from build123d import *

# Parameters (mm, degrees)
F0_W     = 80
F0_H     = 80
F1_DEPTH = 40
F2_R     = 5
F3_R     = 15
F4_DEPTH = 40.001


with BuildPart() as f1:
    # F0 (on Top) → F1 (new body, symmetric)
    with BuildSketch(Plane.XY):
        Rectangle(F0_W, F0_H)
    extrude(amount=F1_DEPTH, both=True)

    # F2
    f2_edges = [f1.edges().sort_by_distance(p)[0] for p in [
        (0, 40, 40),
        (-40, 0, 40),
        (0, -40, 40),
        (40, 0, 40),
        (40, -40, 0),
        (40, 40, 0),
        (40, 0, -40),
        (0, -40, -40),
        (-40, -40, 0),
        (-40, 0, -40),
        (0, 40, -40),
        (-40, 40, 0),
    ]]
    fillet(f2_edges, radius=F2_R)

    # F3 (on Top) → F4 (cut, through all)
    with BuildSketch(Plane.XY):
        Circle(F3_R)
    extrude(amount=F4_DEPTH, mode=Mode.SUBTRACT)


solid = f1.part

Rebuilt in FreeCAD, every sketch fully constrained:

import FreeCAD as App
import Part
import Sketcher


def add_polygon(sketch, points):
    """Adds a closed chain of lines whose ends are joined by coincident constraints."""
    first, n = sketch.GeometryCount, len(points)
    for a, b in zip(points, points[1:] + points[:1]):
        sketch.addGeometry(Part.LineSegment(App.Vector(*a, 0), App.Vector(*b, 0)), False)
    for i in range(n):
        sketch.addConstraint(Sketcher.Constraint("Coincident", first + i, 2, first + (i + 1) % n, 1))

doc = App.newDocument("Part")
params = doc.addObject("Spreadsheet::Sheet", "Params")
for row, (alias, value) in enumerate([
    ("sketch1_width", "80 mm"),
    ("pad1_length", "80 mm"),
    ("fillet_radius", "5 mm"),
    ("sketch2_diameter", "30 mm"),
], start=1):
    params.set(f"A{row}", alias)
    params.set(f"B{row}", "=" + value)
    params.setAlias(f"B{row}", alias)

body = doc.addObject("PartDesign::Body", "Body")

# Sketch on XY plane
sketch1 = body.newObject("Sketcher::SketchObject", "Sketch")
sketch1.AttachmentSupport = (doc.getObject("XY_Plane"), [""])
sketch1.MapMode = "FlatFace"
add_polygon(sketch1, [(-40, 40), (-40, -40), (40, -40), (40, 40)])  # lines 0-3
sketch1.addConstraint(Sketcher.Constraint("Vertical", 0))
sketch1.addConstraint(Sketcher.Constraint("Horizontal", 1))
sketch1.addConstraint(Sketcher.Constraint("Vertical", 2))
sketch1.addConstraint(Sketcher.Constraint("Horizontal", 3))
sketch1.addConstraint(Sketcher.Constraint("Symmetric", 0, 2, 2, 2, -1, 1))
sketch1.addConstraint(Sketcher.Constraint("Equal", 3, 0))
sketch1.addConstraint(Sketcher.Constraint("DistanceX", 1, 1, 1, 2, 80.0))
sketch1.setExpression("Constraints[10]", "Params.sketch1_width")
pad1 = body.newObject("PartDesign::Pad", "Pad")
pad1.Profile = sketch1
pad1.setExpression("Length", "Params.pad1_length")
pad1.Midplane = True
doc.recompute()

fillet = body.newObject("PartDesign::Fillet", "Fillet")
fillet.Base = (pad1, ["Edge1"])
fillet.UseAllEdges = True
fillet.setExpression("Radius", "Params.fillet_radius")

# Sketch on XY plane
sketch2 = body.newObject("Sketcher::SketchObject", "Sketch001")
sketch2.AttachmentSupport = (doc.getObject("XY_Plane"), [""])
sketch2.MapMode = "FlatFace"
sketch2.addGeometry(Part.Circle(App.Vector(0, 0, 0), App.Vector(0, 0, 1), 15), False)
sketch2.addConstraint(Sketcher.Constraint("Coincident", 0, 3, -1, 1))
sketch2.addConstraint(Sketcher.Constraint("Diameter", 0, 30.0))
sketch2.setExpression("Constraints[1]", "Params.sketch2_diameter")
pocket1 = body.newObject("PartDesign::Pocket", "Pocket")
pocket1.Profile = sketch2
pocket1.Type = "ThroughAll"
pocket1.Reversed = True

doc.recompute()
